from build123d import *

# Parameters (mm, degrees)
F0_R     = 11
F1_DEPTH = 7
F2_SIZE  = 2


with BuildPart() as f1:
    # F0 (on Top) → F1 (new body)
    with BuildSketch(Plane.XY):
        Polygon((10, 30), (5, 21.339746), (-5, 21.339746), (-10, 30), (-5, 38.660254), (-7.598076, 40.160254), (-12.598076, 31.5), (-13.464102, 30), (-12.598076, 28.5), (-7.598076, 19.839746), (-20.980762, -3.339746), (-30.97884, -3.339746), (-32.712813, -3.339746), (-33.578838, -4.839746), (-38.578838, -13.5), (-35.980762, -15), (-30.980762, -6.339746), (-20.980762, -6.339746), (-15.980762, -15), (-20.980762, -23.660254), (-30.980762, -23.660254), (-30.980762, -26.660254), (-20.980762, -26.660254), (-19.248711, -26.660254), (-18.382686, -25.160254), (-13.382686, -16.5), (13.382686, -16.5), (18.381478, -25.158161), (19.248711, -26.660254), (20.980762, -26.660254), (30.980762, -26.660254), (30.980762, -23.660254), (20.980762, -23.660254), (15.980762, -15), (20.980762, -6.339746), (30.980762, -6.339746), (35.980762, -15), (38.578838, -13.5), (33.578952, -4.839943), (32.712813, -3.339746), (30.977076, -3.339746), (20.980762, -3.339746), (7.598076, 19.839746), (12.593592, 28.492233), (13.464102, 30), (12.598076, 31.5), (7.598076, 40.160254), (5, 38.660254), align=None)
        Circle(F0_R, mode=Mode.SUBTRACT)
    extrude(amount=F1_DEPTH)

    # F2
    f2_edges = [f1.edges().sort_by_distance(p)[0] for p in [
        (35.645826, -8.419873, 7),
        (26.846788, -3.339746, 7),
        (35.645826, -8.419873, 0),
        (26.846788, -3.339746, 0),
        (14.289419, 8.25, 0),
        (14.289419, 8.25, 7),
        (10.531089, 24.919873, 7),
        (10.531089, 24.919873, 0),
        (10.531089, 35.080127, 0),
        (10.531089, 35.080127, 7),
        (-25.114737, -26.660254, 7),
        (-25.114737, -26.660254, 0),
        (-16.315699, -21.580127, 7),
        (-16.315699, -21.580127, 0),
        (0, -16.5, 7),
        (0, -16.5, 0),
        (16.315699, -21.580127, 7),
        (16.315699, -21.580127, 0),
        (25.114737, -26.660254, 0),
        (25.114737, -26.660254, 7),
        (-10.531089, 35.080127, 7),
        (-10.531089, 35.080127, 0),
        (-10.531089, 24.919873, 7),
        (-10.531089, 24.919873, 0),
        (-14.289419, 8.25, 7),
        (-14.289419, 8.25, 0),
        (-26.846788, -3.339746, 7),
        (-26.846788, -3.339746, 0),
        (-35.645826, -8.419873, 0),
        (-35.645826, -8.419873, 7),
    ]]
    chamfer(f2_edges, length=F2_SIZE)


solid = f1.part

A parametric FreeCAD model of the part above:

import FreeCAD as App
import Part
import Sketcher
Q = App.Units.Quantity


def edges_at(feature, points):
    """Names of the edges that pass closest to the given points."""
    edges = feature.Shape.Edges
    near = lambda p: min(range(len(edges)), key=lambda i: edges[i].distToShape(Part.Vertex(*p))[0])
    return sorted({f"Edge{near(p) + 1}" for p in points})


def add_polygon(sketch, points):
    """Adds a closed chain of lines whose ends are joined by coincident constraints."""
    first, n = sketch.GeometryCount, len(points)
    for a, b in zip(points, points[1:] + points[:1]):
        sketch.addGeometry(Part.LineSegment(App.Vector(*a, 0), App.Vector(*b, 0)), False)
    for i in range(n):
        sketch.addConstraint(Sketcher.Constraint("Coincident", first + i, 2, first + (i + 1) % n, 1))

doc = App.newDocument("Part")
body = doc.addObject("PartDesign::Body", "Body")

# Sketch on XY plane
sketch1 = body.newObject("Sketcher::SketchObject", "Sketch")
sketch1.AttachmentSupport = (doc.getObject("XY_Plane"), [""])
sketch1.MapMode = "FlatFace"
add_polygon(sketch1, [(10, 30), (5, 21.3), (-5, 21.3), (-10, 30), (-5, 38.7), (-7.6, 40.2), (-12.6, 31.5), (-13.5, 30), (-12.6, 28.5), (-7.6, 19.8), (-21, -3.3), (-32.7, -3.3), (-33.6, -4.8), (-38.6, -13.5), (-36, -15), (-31, -6.3), (-21, -6.3), (-16, -15), (-21, -23.7), (-31, -23.7), (-31, -26.7), (-19.2, -26.7), (-18.4, -25.2), (-13.4, -16.5), (13.4, -16.5), (18.4, -25.2), (19.2, -26.7), (31, -26.7), (31, -23.7), (21, -23.7), (16, -15), (21, -6.3), (31, -6.3), (36, -15), (38.6, -13.5), (33.6, -4.8), (32.7, -3.3), (21, -3.3), (7.6, 19.8), (12.6, 28.5), (13.5, 30), (12.6, 31.5), (7.6, 40.2), (5, 38.7)])  # lines 0-43
sketch1.addGeometry(Part.Circle(App.Vector(0, 0, 0), App.Vector(0, 0, 1), 11), False)  # 44
sketch1.addConstraint([
    Sketcher.Constraint("Horizontal", 1),
    Sketcher.Constraint("Horizontal", 10),
    Sketcher.Constraint("Horizontal", 15),
    Sketcher.Constraint("Horizontal", 18),
    Sketcher.Constraint("Vertical", 19),
    Sketcher.Constraint("Horizontal", 20),
    Sketcher.Constraint("Horizontal", 23),
    Sketcher.Constraint("Horizontal", 26),
    Sketcher.Constraint("Vertical", 27),
    Sketcher.Constraint("Horizontal", 28),
    Sketcher.Constraint("Horizontal", 31),
    Sketcher.Constraint("Horizontal", 36),
    Sketcher.Constraint("Coincident", 44, 3, -1, 1),
    Sketcher.Constraint("Symmetric", 20, 2, 25, 2, -2),
    Sketcher.Constraint("Symmetric", 18, 2, 27, 2, -2),
    Sketcher.Constraint("Symmetric", 16, 2, 29, 2, -2),
    Sketcher.Constraint("Symmetric", 15, 2, 30, 2, -2),
    Sketcher.Constraint("Symmetric", 13, 2, 32, 2, -2),
    Sketcher.Constraint("Symmetric", 12, 2, 33, 2, -2),
    Sketcher.Constraint("Symmetric", 10, 2, 35, 2, -2),
    Sketcher.Constraint("Symmetric", 8, 2, 37, 2, -2),
    Sketcher.Constraint("Symmetric", 6, 2, 39, 2, -2),
    Sketcher.Constraint("Symmetric", 5, 2, 40, 2, -2),
    Sketcher.Constraint("Symmetric", 4, 2, 41, 2, -2),
    Sketcher.Constraint("Symmetric", 3, 2, 42, 2, -2),
    Sketcher.Constraint("Symmetric", 2, 2, 43, 2, -2),
    Sketcher.Constraint("Parallel", 0, 3),
    Sketcher.Constraint("Perpendicular", 3, 4),
    Sketcher.Constraint("Perpendicular", 4, 5),
    Sketcher.Constraint("Parallel", 5, 6),
    Sketcher.Constraint("Parallel", 2, 7),
    Sketcher.Constraint("Parallel", 7, 8),
    Sketcher.Constraint("Parallel", 6, 9),
    Sketcher.Constraint("Parallel", 9, 11),
    Sketcher.Constraint("Parallel", 11, 12),
    Sketcher.Constraint("Perpendicular", 12, 13),
    Sketcher.Constraint("Perpendicular", 13, 14),
    Sketcher.Constraint("Parallel", 8, 16),
    Sketcher.Constraint("Parallel", 14, 17),
    Sketcher.Constraint("Parallel", 17, 21),
    Sketcher.Constraint("Parallel", 21, 22),
    Sketcher.Constraint("Parallel", 16, 24),
    Sketcher.Constraint("Parallel", 24, 25),
    Sketcher.Constraint("Parallel", 25, 29),
    Sketcher.Constraint("Parallel", 22, 30),
    Sketcher.Constraint("Parallel", 29, 32),
    Sketcher.Constraint("Perpendicular", 33, 34),
    Sketcher.Constraint("Parallel", 35, 37),
    Sketcher.Constraint("Parallel", 30, 38),
    Sketcher.Constraint("Horizontal", 2, 2, 6, 2),
    Sketcher.Constraint("Horizontal", 13, 2, 16, 2),
    Sketcher.Constraint("Vertical", 1, 2, 3, 2),
    Sketcher.Constraint("Vertical", 5, 2, 7, 2),
    Sketcher.Constraint("Vertical", 4, 2, 8, 2),
    Sketcher.Constraint("Vertical", 9, 2, 15, 2),
    Sketcher.Constraint("Vertical", 15, 2, 17, 2),
    Sketcher.Constraint("Vertical", 14, 2, 18, 2),
    Sketcher.Constraint("Equal", 1, 15),
    Sketcher.Constraint("Equal", 10, 20),
    Sketcher.Constraint("Equal", 3, 5),
    Sketcher.Constraint("Equal", 7, 11),
    Sketcher.Constraint("Equal", 8, 12),
    Sketcher.Constraint("Equal", 4, 13),
    Sketcher.Constraint("Equal", 12, 14),
    Sketcher.Constraint("Equal", 11, 21),
    Sketcher.Constraint("Equal", 17, 22),
    Sketcher.Constraint("Diameter", 44, 22.0),
    Sketcher.Constraint("DistanceX", 1, 2, 1, 1, 10.0),
    Sketcher.Constraint("DistanceY", 19, 2, 19, 1, 3.0),
    Sketcher.Constraint("Angle", 0, Q("-120 deg")),
    Sketcher.Constraint("Distance", 0, 10.0),
    Sketcher.Constraint("Distance", 4, 3.0),
    Sketcher.Constraint("DistanceY", -1, 1, 2, 2, 30.0),
    Sketcher.Constraint("DistanceY", 13, 2, -1, 1, 15.0),
    Sketcher.Constraint("Distance", 35, 1.732278),
    Sketcher.Constraint("Distance", 38, 9.991032),
    Sketcher.Constraint("DistanceX", -1, 1, 24, 2, 18.381478),
])
pad1 = body.newObject("PartDesign::Pad", "Pad")
pad1.Profile = sketch1
pad1.Length = 7
doc.recompute()

chamfer = body.newObject("PartDesign::Chamfer", "Chamfer")
chamfer.Base = (pad1, edges_at(pad1, [
    (36.079, -9.17, 7),
    (26.847, -3.34, 7),
    (36.079, -9.17, 0),
    (26.847, -3.34, 0),
    (14.289, 8.25, 0),
    (14.289, 8.25, 7),
    (10.096, 24.166, 7),
    (10.096, 24.166, 0),
    (10.098, 35.83, 0),
    (10.098, 35.83, 7),
    (-25.115, -26.66, 7),
    (-25.115, -26.66, 0),
    (-15.883, -20.83, 7),
    (-15.883, -20.83, 0),
    (0, -16.5, 7),
    (0, -16.5, 0),
    (15.882, -20.829, 7),
    (15.882, -20.829, 0),
    (25.115, -26.66, 0),
    (25.115, -26.66, 7),
    (-10.098, 35.83, 7),
    (-10.098, 35.83, 0),
    (-10.098, 24.17, 7),
    (-10.098, 24.17, 0),
    (-14.289, 8.25, 7),
    (-14.289, 8.25, 0),
    (-26.847, -3.34, 7),
    (-26.847, -3.34, 0),
    (-36.079, -9.17, 0),
    (-36.079, -9.17, 7),
]))
chamfer.Size = 2

doc.recompute()
